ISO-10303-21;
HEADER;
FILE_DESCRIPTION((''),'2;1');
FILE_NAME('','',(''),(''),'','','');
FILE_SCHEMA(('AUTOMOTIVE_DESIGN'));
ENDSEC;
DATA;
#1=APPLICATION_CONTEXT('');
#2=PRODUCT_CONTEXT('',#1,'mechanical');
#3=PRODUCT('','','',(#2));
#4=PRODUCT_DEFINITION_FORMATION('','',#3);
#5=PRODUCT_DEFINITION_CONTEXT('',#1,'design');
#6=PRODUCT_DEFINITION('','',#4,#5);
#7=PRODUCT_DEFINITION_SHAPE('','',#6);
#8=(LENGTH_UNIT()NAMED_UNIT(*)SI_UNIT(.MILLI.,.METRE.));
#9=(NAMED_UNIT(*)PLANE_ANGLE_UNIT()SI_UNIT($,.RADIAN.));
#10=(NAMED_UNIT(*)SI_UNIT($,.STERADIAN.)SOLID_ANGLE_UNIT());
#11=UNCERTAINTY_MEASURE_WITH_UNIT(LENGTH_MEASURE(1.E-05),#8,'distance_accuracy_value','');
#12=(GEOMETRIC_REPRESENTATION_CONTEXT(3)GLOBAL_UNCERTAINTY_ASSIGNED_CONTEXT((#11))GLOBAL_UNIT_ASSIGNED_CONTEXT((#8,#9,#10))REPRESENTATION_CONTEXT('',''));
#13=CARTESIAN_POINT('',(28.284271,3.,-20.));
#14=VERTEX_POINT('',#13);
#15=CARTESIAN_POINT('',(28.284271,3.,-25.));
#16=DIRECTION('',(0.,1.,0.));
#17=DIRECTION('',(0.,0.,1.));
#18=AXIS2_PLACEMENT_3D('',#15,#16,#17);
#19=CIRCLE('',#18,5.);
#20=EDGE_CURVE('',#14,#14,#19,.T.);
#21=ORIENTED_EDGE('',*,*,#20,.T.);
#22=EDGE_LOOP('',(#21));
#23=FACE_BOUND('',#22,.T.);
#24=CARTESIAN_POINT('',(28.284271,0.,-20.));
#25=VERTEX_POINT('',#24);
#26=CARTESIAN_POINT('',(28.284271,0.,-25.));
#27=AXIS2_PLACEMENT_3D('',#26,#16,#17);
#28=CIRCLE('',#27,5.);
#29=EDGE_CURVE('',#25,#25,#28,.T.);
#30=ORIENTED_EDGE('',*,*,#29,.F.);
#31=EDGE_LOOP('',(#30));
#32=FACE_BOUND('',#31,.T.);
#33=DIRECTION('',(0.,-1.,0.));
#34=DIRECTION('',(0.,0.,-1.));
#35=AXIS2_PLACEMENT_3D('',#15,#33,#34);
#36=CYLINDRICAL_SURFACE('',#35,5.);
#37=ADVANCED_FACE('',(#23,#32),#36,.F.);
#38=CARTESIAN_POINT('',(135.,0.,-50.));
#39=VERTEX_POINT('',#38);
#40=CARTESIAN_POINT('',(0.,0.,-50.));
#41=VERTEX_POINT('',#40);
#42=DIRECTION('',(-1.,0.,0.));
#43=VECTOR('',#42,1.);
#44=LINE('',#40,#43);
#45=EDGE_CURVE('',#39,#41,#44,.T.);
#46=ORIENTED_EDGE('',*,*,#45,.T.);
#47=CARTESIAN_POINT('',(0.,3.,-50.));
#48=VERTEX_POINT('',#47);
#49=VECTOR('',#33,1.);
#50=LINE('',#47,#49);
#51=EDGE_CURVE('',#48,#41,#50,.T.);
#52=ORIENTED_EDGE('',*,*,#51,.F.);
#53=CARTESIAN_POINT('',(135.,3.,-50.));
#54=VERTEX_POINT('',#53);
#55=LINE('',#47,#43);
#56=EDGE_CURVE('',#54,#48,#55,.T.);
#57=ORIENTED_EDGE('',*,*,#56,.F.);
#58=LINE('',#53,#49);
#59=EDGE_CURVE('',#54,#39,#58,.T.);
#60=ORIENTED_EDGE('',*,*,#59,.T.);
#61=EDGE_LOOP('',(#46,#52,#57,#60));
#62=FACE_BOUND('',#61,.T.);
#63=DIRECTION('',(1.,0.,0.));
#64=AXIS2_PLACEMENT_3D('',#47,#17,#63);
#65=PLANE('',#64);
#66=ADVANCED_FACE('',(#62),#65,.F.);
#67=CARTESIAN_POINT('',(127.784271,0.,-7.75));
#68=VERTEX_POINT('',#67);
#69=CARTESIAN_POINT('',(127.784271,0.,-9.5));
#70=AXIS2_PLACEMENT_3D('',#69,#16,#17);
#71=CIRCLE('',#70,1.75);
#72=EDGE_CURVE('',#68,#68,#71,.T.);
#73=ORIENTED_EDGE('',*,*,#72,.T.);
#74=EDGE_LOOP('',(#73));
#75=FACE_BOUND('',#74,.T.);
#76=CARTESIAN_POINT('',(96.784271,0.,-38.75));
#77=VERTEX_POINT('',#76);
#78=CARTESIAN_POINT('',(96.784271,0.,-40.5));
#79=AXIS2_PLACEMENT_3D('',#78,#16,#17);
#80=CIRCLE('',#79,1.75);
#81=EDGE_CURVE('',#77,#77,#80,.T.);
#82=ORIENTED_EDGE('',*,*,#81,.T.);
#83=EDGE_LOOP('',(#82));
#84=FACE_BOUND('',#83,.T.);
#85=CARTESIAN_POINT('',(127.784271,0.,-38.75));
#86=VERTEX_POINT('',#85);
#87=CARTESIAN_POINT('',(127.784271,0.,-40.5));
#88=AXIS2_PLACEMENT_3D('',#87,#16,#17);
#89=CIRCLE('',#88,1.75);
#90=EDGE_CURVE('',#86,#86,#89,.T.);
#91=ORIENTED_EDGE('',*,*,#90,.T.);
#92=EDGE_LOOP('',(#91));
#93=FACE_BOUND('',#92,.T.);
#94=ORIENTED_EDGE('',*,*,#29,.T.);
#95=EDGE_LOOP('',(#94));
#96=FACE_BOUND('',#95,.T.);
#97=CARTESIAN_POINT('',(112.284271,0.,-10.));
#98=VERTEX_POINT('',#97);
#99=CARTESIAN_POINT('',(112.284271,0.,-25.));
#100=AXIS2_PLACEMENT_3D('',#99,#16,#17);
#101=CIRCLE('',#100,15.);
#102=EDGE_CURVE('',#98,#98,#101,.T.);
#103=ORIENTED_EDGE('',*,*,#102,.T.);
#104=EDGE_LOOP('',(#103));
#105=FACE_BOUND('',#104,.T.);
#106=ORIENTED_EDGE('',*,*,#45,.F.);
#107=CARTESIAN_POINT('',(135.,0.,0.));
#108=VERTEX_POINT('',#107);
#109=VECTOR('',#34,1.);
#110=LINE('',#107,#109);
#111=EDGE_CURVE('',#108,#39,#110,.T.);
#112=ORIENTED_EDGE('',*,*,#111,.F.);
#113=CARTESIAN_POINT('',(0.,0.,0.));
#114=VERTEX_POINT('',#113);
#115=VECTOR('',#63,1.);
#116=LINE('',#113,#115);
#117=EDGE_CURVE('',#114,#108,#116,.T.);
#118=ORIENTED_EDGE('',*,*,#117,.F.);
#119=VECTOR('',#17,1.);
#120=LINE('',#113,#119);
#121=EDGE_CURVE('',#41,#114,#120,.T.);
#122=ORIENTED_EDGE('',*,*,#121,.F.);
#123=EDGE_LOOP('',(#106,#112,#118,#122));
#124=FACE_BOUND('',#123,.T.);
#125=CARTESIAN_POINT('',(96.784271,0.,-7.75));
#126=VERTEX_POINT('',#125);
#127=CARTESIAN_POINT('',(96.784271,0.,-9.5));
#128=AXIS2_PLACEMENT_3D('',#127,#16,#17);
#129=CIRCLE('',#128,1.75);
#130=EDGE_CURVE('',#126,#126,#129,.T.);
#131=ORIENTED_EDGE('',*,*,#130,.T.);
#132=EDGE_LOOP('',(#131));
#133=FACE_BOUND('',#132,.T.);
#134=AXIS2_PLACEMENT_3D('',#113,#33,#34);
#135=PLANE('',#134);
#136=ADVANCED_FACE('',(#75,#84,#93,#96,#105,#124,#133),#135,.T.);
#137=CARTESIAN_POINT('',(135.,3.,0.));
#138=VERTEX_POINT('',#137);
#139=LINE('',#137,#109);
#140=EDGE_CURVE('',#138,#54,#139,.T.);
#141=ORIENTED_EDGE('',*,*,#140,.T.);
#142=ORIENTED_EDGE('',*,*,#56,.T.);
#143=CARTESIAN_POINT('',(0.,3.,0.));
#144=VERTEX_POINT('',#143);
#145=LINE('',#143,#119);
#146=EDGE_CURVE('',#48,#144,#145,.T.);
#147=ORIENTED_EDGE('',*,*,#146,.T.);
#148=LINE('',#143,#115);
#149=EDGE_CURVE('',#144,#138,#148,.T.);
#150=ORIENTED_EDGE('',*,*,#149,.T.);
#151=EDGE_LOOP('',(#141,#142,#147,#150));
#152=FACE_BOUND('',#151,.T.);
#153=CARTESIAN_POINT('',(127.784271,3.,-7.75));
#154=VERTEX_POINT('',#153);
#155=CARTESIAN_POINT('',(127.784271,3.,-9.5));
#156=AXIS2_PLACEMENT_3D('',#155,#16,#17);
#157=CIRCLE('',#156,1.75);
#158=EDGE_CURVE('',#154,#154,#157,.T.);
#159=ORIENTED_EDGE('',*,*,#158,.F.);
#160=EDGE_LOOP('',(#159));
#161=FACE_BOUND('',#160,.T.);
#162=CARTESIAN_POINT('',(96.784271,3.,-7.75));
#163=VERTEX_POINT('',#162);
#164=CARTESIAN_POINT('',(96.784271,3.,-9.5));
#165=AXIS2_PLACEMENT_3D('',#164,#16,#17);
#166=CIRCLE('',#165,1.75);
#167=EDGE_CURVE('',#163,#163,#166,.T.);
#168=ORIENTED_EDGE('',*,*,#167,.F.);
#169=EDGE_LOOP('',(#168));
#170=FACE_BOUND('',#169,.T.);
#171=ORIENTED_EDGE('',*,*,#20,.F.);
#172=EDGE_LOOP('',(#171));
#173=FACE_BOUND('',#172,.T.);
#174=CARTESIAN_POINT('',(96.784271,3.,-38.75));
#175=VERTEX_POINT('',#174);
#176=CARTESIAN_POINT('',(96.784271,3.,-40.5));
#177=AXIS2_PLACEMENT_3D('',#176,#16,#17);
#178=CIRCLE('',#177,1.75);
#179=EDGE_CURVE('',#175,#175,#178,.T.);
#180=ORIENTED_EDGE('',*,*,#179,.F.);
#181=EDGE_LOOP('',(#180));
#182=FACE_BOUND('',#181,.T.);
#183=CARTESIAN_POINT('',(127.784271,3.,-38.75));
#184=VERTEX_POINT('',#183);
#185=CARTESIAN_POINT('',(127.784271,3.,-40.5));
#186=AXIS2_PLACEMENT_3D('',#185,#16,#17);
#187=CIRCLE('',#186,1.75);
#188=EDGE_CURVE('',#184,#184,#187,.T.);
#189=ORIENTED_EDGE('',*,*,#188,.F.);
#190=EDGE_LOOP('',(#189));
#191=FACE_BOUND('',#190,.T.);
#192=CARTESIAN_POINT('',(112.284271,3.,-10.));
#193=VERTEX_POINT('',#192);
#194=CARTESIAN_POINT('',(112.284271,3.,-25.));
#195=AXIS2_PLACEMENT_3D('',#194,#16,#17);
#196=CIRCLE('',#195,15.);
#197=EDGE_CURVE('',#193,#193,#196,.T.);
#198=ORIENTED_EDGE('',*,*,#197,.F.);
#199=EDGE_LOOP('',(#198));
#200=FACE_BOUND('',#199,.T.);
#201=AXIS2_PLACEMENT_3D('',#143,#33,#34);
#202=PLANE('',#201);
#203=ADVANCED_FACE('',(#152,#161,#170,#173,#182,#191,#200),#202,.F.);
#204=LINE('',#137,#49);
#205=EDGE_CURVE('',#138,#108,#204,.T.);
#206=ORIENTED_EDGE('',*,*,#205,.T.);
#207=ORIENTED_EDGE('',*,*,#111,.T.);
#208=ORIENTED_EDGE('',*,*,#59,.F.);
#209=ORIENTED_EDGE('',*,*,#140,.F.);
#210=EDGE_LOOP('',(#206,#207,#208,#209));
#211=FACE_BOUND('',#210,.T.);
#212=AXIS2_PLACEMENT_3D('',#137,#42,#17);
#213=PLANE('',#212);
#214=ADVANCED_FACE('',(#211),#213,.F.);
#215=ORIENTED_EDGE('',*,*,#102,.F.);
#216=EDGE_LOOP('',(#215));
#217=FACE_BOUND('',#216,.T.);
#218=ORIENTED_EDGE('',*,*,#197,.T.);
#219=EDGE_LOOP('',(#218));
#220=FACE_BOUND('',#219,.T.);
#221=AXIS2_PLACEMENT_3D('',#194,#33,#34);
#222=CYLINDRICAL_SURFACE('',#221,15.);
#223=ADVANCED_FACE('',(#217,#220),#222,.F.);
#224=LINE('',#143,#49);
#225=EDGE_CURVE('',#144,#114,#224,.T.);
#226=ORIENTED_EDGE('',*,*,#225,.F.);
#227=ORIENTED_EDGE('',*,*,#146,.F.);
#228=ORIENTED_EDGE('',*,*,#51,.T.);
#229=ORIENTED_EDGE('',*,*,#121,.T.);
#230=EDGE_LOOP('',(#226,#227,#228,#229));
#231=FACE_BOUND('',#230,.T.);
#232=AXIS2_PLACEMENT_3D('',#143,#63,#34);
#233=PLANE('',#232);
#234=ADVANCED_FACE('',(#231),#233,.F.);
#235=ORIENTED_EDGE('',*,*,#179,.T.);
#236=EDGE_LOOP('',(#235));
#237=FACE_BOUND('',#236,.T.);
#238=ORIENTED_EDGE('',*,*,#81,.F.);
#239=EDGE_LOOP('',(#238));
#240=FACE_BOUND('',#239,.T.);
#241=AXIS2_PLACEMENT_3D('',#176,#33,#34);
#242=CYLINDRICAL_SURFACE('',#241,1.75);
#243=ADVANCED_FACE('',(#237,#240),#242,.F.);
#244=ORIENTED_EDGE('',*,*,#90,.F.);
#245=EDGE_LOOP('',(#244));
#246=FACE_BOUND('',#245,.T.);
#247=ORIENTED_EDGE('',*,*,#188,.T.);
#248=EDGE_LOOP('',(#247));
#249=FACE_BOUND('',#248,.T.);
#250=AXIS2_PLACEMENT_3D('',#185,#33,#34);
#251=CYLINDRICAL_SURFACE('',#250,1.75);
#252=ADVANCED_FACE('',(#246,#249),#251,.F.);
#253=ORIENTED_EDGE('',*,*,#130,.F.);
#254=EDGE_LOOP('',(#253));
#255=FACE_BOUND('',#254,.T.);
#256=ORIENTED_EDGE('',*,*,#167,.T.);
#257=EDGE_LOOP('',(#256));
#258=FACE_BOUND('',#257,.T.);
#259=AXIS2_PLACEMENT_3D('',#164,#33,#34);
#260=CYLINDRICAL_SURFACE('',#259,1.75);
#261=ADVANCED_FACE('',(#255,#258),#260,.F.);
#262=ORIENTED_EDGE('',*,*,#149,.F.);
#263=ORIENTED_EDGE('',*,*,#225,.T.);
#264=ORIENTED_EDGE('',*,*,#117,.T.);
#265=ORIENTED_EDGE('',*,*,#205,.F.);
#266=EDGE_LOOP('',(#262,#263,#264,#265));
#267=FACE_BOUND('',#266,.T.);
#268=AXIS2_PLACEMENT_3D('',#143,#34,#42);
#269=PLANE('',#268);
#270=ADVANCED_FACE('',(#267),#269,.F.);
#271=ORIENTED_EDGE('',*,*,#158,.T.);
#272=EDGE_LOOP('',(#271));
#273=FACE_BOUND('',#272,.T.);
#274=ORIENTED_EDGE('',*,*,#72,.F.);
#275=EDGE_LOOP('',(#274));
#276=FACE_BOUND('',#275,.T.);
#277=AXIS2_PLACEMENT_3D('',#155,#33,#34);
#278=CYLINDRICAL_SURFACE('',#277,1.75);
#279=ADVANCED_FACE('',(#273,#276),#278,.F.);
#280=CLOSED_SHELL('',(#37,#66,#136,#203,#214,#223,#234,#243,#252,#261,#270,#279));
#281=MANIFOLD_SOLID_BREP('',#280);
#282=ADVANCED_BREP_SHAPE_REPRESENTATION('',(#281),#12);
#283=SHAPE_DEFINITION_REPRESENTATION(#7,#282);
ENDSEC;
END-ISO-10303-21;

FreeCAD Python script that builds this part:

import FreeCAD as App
import Part
import Sketcher
Q = App.Units.Quantity


def add_polygon(sketch, points):
    """Adds a closed chain of lines whose ends are joined by coincident constraints."""
    first, n = sketch.GeometryCount, len(points)
    for a, b in zip(points, points[1:] + points[:1]):
        sketch.addGeometry(Part.LineSegment(App.Vector(*a, 0), App.Vector(*b, 0)), False)
    for i in range(n):
        sketch.addConstraint(Sketcher.Constraint("Coincident", first + i, 2, first + (i + 1) % n, 1))

doc = App.newDocument("Part")
body = doc.addObject("PartDesign::Body", "Body")

# Sketch on XZ plane
sketch1 = body.newObject("Sketcher::SketchObject", "Sketch")
sketch1.AttachmentSupport = (doc.getObject("XZ_Plane"), [""])
sketch1.MapMode = "FlatFace"
add_polygon(sketch1, [(0, -50), (0, 0), (135, 0), (135, -50)])  # lines 0-3
sketch1.addGeometry(Part.Circle(App.Vector(96.8, -9.5, 0), App.Vector(0, 0, 1), 1.8), False)  # 4
sketch1.addGeometry(Part.Circle(App.Vector(127.8, -9.5, 0), App.Vector(0, 0, 1), 1.8), False)  # 5
sketch1.addGeometry(Part.Circle(App.Vector(28.3, -25, 0), App.Vector(0, 0, 1), 5), False)  # 6
sketch1.addGeometry(Part.Circle(App.Vector(112.3, -25, 0), App.Vector(0, 0, 1), 15), False)  # 7
sketch1.addGeometry(Part.Circle(App.Vector(96.8, -40.5, 0), App.Vector(0, 0, 1), 1.8), False)  # 8
sketch1.addGeometry(Part.Circle(App.Vector(127.8, -40.5, 0), App.Vector(0, 0, 1), 1.8), False)  # 9
sketch1.addConstraint([
    Sketcher.Constraint("Vertical", 0),
    Sketcher.Constraint("Horizontal", 1),
    Sketcher.Constraint("Vertical", 2),
    Sketcher.Constraint("Horizontal", 3),
    Sketcher.Constraint("Coincident", 0, 2, -1, 1),
    Sketcher.Constraint("Equal", 4, 5),
    Sketcher.Constraint("Equal", 5, 8),
    Sketcher.Constraint("Equal", 8, 9),
    Sketcher.Constraint("Horizontal", 4, 3, 5, 3),
    Sketcher.Constraint("Horizontal", 6, 3, 7, 3),
    Sketcher.Constraint("Horizontal", 8, 3, 9, 3),
    Sketcher.Constraint("Vertical", 4, 3, 8, 3),
    Sketcher.Constraint("Vertical", 5, 3, 9, 3),
    Sketcher.Constraint("Diameter", 6, Q("10 mm")),
    Sketcher.Constraint("Diameter", 7, Q("30 mm")),
    Sketcher.Constraint("Diameter", 4, Q("3.5 mm")),
    Sketcher.Constraint("DistanceX", 1, 1, 1, 2, Q("135 mm")),
    Sketcher.Constraint("DistanceY", 0, 1, 0, 2, Q("50 mm")),
    Sketcher.Constraint("DistanceY", 6, 3, -1, 1, Q("25 mm")),
    Sketcher.Constraint("DistanceX", 4, 3, 5, 3, Q("31 mm")),
    Sketcher.Constraint("DistanceX", 6, 3, 7, 3, Q("84 mm")),
    Sketcher.Constraint("DistanceY", 8, 3, 4, 3, Q("31 mm")),
    Sketcher.Constraint("DistanceY", 4, 3, -1, 1, Q("9.5 mm")),
    Sketcher.Constraint("DistanceX", 6, 3, 4, 3, Q("68.5 mm")),
    Sketcher.Constraint("DistanceX", -1, 1, 4, 3, Q("96.784271 mm")),
])
pad1 = body.newObject("PartDesign::Pad", "Pad")
pad1.Profile = sketch1
pad1.Length = 3
pad1.Reversed = True

doc.recompute()
